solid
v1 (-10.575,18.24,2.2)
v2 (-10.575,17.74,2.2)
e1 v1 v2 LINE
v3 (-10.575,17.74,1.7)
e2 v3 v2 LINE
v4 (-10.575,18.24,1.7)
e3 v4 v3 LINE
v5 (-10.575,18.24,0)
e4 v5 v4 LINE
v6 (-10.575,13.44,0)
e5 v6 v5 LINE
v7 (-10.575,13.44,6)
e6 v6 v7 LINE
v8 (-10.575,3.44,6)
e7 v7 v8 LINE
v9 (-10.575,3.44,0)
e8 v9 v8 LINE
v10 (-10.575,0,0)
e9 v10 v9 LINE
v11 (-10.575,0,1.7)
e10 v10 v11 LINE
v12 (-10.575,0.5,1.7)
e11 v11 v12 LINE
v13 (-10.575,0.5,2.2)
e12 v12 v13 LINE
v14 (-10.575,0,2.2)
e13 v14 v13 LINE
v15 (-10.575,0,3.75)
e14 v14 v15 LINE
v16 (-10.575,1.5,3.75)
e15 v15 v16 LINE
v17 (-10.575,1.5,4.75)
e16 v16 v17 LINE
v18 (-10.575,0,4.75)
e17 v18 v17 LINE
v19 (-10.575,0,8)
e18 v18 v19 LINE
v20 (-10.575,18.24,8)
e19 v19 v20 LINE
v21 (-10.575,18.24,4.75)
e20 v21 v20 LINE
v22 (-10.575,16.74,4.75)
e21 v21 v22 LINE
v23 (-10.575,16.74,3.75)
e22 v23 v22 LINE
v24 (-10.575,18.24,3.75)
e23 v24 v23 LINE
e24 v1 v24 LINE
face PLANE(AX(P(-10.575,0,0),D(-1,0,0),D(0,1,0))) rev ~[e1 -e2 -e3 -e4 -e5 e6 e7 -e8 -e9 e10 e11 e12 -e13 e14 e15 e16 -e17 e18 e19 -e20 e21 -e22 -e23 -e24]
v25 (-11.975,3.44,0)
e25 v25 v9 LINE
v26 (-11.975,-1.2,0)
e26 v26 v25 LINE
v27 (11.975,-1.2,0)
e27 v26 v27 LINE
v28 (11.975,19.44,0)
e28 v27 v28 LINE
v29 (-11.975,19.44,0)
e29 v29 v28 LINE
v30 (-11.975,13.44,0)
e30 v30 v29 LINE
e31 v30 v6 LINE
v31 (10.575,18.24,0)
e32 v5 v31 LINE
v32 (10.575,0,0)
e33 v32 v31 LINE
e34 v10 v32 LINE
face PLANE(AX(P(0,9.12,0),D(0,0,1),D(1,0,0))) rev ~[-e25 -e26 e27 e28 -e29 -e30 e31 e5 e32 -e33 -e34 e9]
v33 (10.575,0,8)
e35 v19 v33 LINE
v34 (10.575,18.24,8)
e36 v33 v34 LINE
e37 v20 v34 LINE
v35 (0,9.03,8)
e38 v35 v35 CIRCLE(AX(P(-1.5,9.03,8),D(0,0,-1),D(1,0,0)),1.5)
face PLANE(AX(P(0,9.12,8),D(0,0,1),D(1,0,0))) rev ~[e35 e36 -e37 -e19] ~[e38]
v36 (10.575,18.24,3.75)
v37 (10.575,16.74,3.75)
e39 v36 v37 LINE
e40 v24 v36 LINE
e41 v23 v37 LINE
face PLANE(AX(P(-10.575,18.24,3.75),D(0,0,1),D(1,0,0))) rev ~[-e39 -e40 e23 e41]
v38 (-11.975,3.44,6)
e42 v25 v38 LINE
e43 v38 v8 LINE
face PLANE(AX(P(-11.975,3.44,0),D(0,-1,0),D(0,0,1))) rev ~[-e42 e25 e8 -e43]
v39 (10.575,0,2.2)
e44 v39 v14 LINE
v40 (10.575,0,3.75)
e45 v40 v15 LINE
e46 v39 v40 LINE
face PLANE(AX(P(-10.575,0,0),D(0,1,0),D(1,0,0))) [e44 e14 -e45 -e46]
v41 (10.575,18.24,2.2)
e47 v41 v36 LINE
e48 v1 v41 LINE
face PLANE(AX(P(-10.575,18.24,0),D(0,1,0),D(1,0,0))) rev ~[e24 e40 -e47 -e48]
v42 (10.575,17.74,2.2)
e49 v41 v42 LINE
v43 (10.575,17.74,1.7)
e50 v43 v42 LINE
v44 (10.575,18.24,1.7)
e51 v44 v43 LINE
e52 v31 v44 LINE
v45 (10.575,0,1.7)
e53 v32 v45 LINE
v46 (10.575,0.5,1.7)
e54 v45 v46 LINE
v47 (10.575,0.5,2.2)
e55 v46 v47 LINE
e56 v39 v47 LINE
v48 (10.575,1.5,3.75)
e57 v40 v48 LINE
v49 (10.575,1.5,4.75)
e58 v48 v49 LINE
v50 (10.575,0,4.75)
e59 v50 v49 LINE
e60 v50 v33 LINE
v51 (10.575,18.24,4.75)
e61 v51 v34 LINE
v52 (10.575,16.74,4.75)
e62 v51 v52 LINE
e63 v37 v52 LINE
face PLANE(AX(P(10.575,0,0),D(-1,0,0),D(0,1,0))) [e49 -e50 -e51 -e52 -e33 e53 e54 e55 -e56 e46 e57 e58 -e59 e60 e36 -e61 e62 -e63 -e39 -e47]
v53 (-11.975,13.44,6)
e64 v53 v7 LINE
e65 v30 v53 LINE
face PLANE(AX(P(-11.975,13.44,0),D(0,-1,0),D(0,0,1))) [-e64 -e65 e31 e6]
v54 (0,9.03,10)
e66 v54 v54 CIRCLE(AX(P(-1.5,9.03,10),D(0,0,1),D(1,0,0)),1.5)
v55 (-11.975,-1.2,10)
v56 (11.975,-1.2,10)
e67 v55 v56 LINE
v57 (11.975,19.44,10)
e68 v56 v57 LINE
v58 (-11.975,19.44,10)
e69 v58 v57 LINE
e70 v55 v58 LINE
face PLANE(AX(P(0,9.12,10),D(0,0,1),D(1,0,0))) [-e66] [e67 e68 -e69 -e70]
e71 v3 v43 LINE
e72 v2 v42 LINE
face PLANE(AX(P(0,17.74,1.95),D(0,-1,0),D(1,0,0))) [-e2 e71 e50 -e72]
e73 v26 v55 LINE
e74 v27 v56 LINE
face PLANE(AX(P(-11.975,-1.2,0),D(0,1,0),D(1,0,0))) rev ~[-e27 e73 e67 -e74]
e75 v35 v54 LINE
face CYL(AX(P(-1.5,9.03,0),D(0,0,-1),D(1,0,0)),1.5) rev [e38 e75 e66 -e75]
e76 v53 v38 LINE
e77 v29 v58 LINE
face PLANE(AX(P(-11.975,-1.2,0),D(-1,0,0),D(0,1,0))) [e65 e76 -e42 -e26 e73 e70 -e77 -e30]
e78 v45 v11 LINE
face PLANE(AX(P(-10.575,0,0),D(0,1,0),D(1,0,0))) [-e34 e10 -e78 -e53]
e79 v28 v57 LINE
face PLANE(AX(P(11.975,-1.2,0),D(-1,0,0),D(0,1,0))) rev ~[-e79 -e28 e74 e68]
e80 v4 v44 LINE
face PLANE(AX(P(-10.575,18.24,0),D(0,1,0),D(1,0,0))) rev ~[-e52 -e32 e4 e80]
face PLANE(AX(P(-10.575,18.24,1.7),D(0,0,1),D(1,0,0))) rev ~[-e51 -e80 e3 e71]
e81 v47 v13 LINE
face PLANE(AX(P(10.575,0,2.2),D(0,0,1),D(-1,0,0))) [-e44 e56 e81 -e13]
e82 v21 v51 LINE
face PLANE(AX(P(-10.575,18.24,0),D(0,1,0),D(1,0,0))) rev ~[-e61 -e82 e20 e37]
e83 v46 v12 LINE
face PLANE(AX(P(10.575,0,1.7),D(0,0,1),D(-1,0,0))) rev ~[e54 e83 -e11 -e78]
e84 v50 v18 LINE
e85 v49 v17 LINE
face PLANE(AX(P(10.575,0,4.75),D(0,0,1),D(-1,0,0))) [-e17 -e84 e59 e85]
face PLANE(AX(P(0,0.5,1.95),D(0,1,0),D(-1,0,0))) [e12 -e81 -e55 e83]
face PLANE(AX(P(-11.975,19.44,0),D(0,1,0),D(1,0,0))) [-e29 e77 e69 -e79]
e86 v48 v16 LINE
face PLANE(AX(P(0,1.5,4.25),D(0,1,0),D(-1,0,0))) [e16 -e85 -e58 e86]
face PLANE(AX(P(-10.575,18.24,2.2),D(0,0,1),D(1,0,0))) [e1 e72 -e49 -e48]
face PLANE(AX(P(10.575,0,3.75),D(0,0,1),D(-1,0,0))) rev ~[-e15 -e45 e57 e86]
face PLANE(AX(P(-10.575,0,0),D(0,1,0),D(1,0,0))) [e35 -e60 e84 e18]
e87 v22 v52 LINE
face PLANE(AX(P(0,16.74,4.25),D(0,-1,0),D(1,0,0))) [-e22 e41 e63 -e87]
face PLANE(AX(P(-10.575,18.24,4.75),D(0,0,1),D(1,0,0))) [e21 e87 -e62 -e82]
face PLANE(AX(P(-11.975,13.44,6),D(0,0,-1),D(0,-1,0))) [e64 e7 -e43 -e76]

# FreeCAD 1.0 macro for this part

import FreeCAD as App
import Part
import Sketcher

V = App.Vector


def add_polygon(sketch, points):
    """Adds a closed chain of lines whose ends are joined by coincident constraints."""
    first, n = sketch.GeometryCount, len(points)
    for a, b in zip(points, points[1:] + points[:1]):
        sketch.addGeometry(Part.LineSegment(App.Vector(*a, 0), App.Vector(*b, 0)), False)
    for i in range(n):
        sketch.addConstraint(Sketcher.Constraint("Coincident", first + i, 2, first + (i + 1) % n, 1))

doc = App.newDocument("Part")
body = doc.addObject("PartDesign::Body", "Body")

# Sketch on XY plane
sketch1 = body.newObject("Sketcher::SketchObject", "Sketch")
sketch1.AttachmentSupport = (doc.getObject("XY_Plane"), [""])
sketch1.MapMode = "FlatFace"
add_polygon(sketch1, [(-12, 19.4), (-12, -1.2), (12, -1.2), (12, 19.4)])  # lines 0-3
sketch1.addGeometry(Part.Circle(V(-1.5, 9, 0), V(0, 0, 1), 1.5), False)  # 4
sketch1.addConstraint(Sketcher.Constraint("Vertical", 0))
sketch1.addConstraint(Sketcher.Constraint("Horizontal", 1))
sketch1.addConstraint(Sketcher.Constraint("Vertical", 2))
sketch1.addConstraint(Sketcher.Constraint("Horizontal", 3))
sketch1.addConstraint(Sketcher.Constraint("Diameter", 4, 3.0))
sketch1.addConstraint(Sketcher.Constraint("DistanceX", 1, 1, 1, 2, 23.95))
sketch1.addConstraint(Sketcher.Constraint("DistanceY", 0, 2, 0, 1, 20.64))
sketch1.addConstraint(Sketcher.Constraint("DistanceX", 4, 3, -1, 1, 1.5))
sketch1.addConstraint(Sketcher.Constraint("DistanceY", 0, 2, -1, 1, 1.2))
sketch1.addConstraint(Sketcher.Constraint("DistanceY", -1, 1, 4, 3, 9.03))
sketch1.addConstraint(Sketcher.Constraint("DistanceX", 0, 2, -1, 1, 11.975))
pad1 = body.newObject("PartDesign::Pad", "Pad")
pad1.Profile = sketch1
pad1.Length = 10

# Sketch on XY plane
sketch2 = body.newObject("Sketcher::SketchObject", "Sketch001")
sketch2.AttachmentSupport = (doc.getObject("XY_Plane"), [""])
sketch2.MapMode = "FlatFace"
add_polygon(sketch2, [(-11, 18), (-11, 0), (11, 0), (11, 18)])  # lines 0-3
sketch2.addConstraint(Sketcher.Constraint("Vertical", 0))
sketch2.addConstraint(Sketcher.Constraint("Horizontal", 1))
sketch2.addConstraint(Sketcher.Constraint("Vertical", 2))
sketch2.addConstraint(Sketcher.Constraint("Horizontal", 3))
sketch2.addConstraint(Sketcher.Constraint("Symmetric", 0, 2, 1, 2, -1, 1))
sketch2.addConstraint(Sketcher.Constraint("DistanceX", 1, 1, 1, 2, 21.15))
sketch2.addConstraint(Sketcher.Constraint("DistanceY", 0, 2, 0, 1, 18.24))
pocket1 = body.newObject("PartDesign::Pocket", "Pocket")
pocket1.Profile = sketch2
pocket1.Length = 8
pocket1.Reversed = True

# Sketch on XZ plane
sketch3 = body.newObject("Sketcher::SketchObject", "Sketch002")
sketch3.AttachmentSupport = (doc.getObject("XZ_Plane"), [""])
sketch3.MapMode = "FlatFace"
add_polygon(sketch3, [(10.6, 4.8), (10.6, 3.8), (-10.6, 3.8), (-10.6, 4.8)])  # lines 0-3
sketch3.addConstraint(Sketcher.Constraint("Vertical", 0))
sketch3.addConstraint(Sketcher.Constraint("Horizontal", 1))
sketch3.addConstraint(Sketcher.Constraint("Vertical", 2))
sketch3.addConstraint(Sketcher.Constraint("Horizontal", 3))
sketch3.addConstraint(Sketcher.Constraint("DistanceY", 0, 2, 0, 1, 1.0))
sketch3.addConstraint(Sketcher.Constraint("DistanceX", 1, 2, 1, 1, 21.15))
sketch3.addConstraint(Sketcher.Constraint("DistanceY", -1, 1, 0, 2, 3.75))
sketch3.addConstraint(Sketcher.Constraint("DistanceX", -1, 1, 0, 2, 10.575))
pad2 = body.newObject("PartDesign::Pad", "Pad001")
pad2.Profile = sketch3
pad2.Length = 1.5
pad2.Reversed = True

# Sketch on XZ plane
sketch4 = body.newObject("Sketcher::SketchObject", "Sketch003")
sketch4.AttachmentSupport = (doc.getObject("XZ_Plane"), [""])
sketch4.MapMode = "FlatFace"
sketch4.AttachmentOffset = App.Placement(V(0, 0, -18.24), App.Rotation())
add_polygon(sketch4, [(-10.6, 4.8), (-10.6, 3.8), (10.6, 3.8), (10.6, 4.8)])  # lines 0-3
sketch4.addConstraint(Sketcher.Constraint("Vertical", 0))
sketch4.addConstraint(Sketcher.Constraint("Horizontal", 1))
sketch4.addConstraint(Sketcher.Constraint("Vertical", 2))
sketch4.addConstraint(Sketcher.Constraint("Horizontal", 3))
sketch4.addConstraint(Sketcher.Constraint("DistanceY", 0, 2, 0, 1, 1.0))
sketch4.addConstraint(Sketcher.Constraint("DistanceX", 1, 1, 1, 2, 21.15))
sketch4.addConstraint(Sketcher.Constraint("DistanceY", -1, 1, 0, 2, 3.75))
sketch4.addConstraint(Sketcher.Constraint("DistanceX", 0, 2, -1, 1, 10.575))
pad3 = body.newObject("PartDesign::Pad", "Pad002")
pad3.Profile = sketch4
pad3.Length = 1.5

# Sketch on XZ plane
sketch5 = body.newObject("Sketcher::SketchObject", "Sketch004")
sketch5.AttachmentSupport = (doc.getObject("XZ_Plane"), [""])
sketch5.MapMode = "FlatFace"
sketch5.AttachmentOffset = App.Placement(V(0, 0, -18.24), App.Rotation())
add_polygon(sketch5, [(-10.6, 2.2), (-10.6, 1.7), (10.6, 1.7), (10.6, 2.2)])  # lines 0-3
sketch5.addConstraint(Sketcher.Constraint("Vertical", 0))
sketch5.addConstraint(Sketcher.Constraint("Horizontal", 1))
sketch5.addConstraint(Sketcher.Constraint("Vertical", 2))
sketch5.addConstraint(Sketcher.Constraint("Horizontal", 3))
sketch5.addConstraint(Sketcher.Constraint("DistanceY", 0, 2, 0, 1, 0.5))
sketch5.addConstraint(Sketcher.Constraint("DistanceX", 1, 1, 1, 2, 21.15))
sketch5.addConstraint(Sketcher.Constraint("DistanceY", -1, 1, 0, 2, 1.7))
sketch5.addConstraint(Sketcher.Constraint("DistanceX", 0, 2, -1, 1, 10.575))
pad4 = body.newObject("PartDesign::Pad", "Pad003")
pad4.Profile = sketch5
pad4.Length = 0.5

# Sketch on XZ plane
sketch6 = body.newObject("Sketcher::SketchObject", "Sketch005")
sketch6.AttachmentSupport = (doc.getObject("XZ_Plane"), [""])
sketch6.MapMode = "FlatFace"
add_polygon(sketch6, [(10.6, 2.2), (10.6, 1.7), (-10.6, 1.7), (-10.6, 2.2)])  # lines 0-3
sketch6.addConstraint(Sketcher.Constraint("Vertical", 0))
sketch6.addConstraint(Sketcher.Constraint("Horizontal", 1))
sketch6.addConstraint(Sketcher.Constraint("Vertical", 2))
sketch6.addConstraint(Sketcher.Constraint("Horizontal", 3))
sketch6.addConstraint(Sketcher.Constraint("DistanceY", 0, 2, 0, 1, 0.5))
sketch6.addConstraint(Sketcher.Constraint("DistanceX", 1, 2, 1, 1, 21.15))
sketch6.addConstraint(Sketcher.Constraint("DistanceY", -1, 1, 0, 2, 1.7))
sketch6.addConstraint(Sketcher.Constraint("DistanceX", -1, 1, 0, 2, 10.575))
pad5 = body.newObject("PartDesign::Pad", "Pad004")
pad5.Profile = sketch6
pad5.Length = 0.5
pad5.Reversed = True

# Sketch on YZ plane
sketch7 = body.newObject("Sketcher::SketchObject", "Sketch006")
sketch7.AttachmentSupport = (doc.getObject("YZ_Plane"), [""])
sketch7.MapMode = "FlatFace"
sketch7.AttachmentOffset = App.Placement(V(0, 0, -11.975), App.Rotation())
add_polygon(sketch7, [(13, 6), (13, 0), (3, 0), (3, 6)])  # lines 0-3
sketch7.addConstraint(Sketcher.Constraint("Vertical", 0))
sketch7.addConstraint(Sketcher.Constraint("Horizontal", 1))
sketch7.addConstraint(Sketcher.Constraint("Vertical", 2))
sketch7.addConstraint(Sketcher.Constraint("Horizontal", 3))
sketch7.addConstraint(Sketcher.Constraint("PointOnObject", 0, 2, -1))
sketch7.addConstraint(Sketcher.Constraint("DistanceX", 1, 2, 1, 1, 10.0))
sketch7.addConstraint(Sketcher.Constraint("DistanceY", 0, 2, 0, 1, 6.0))
sketch7.addConstraint(Sketcher.Constraint("DistanceX", -1, 1, 0, 2, 13.44))
pocket2 = body.newObject("PartDesign::Pocket", "Pocket001")
pocket2.Profile = sketch7
pocket2.Length = 5
pocket2.Reversed = True

doc.recompute()
